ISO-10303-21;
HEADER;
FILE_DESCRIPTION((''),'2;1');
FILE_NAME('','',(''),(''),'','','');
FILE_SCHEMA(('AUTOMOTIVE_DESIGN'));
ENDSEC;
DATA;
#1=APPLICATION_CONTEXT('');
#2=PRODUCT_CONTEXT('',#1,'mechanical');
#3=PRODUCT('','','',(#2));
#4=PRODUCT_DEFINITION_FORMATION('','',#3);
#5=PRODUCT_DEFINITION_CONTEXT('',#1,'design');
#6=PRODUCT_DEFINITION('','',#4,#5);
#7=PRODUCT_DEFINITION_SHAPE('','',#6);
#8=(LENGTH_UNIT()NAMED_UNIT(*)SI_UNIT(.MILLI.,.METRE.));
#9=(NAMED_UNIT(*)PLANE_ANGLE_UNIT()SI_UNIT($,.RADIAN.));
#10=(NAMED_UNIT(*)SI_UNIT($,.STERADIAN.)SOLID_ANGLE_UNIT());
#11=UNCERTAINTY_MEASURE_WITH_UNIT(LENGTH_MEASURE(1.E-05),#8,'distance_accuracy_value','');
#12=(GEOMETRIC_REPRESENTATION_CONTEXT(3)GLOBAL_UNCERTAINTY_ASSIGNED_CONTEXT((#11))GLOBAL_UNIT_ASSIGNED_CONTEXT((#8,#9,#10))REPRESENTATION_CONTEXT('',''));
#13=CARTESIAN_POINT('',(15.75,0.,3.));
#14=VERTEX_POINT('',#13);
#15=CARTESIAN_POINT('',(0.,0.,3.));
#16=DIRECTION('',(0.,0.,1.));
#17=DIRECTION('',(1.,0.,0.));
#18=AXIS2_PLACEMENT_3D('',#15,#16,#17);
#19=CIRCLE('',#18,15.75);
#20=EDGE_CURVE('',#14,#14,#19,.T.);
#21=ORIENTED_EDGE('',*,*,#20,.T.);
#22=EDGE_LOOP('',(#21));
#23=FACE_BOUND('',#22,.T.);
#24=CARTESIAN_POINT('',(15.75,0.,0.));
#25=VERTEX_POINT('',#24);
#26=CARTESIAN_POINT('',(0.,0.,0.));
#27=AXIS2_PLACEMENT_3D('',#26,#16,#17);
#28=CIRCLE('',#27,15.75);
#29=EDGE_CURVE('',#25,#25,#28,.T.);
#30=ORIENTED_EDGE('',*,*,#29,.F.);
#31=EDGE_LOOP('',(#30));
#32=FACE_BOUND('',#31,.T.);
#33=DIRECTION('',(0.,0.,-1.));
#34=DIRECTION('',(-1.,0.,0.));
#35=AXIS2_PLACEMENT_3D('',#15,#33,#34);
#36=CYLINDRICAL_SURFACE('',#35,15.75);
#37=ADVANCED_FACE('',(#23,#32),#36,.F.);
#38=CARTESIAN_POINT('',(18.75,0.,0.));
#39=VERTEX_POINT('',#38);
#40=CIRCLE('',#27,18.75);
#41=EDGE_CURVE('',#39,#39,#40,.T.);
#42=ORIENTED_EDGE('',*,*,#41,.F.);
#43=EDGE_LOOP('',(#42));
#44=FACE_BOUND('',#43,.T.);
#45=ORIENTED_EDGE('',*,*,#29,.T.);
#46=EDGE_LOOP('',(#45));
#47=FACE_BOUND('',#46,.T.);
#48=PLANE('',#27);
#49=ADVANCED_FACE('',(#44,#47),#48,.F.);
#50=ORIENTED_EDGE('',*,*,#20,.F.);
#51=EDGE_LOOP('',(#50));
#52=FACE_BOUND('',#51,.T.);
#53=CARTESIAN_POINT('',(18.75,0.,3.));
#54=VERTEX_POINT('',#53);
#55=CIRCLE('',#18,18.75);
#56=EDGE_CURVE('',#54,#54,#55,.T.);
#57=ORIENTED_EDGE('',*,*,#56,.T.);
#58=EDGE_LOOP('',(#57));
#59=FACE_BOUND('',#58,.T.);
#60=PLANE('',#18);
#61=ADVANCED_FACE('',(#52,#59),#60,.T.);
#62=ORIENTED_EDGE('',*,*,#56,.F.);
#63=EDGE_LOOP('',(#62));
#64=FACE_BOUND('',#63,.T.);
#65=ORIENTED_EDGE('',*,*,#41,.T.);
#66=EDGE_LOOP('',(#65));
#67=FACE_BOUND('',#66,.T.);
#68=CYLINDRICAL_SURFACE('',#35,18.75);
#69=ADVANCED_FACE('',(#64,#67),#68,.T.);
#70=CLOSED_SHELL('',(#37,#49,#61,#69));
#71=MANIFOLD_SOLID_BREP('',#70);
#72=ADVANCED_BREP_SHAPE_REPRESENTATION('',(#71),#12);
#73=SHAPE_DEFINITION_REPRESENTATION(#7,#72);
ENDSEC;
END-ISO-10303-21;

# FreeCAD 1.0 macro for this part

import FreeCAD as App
import Part
import Sketcher
Q = App.Units.Quantity

doc = App.newDocument("Part")
body = doc.addObject("PartDesign::Body", "Body")

sketch1 = body.newObject("Sketcher::SketchObject", "Sketch")
sketch1.AttachmentSupport = (doc.getObject("XY_Plane"), [""])
sketch1.MapMode = "FlatFace"
sketch1.addGeometry([
    Part.Circle(App.Vector(0, 0, 0), App.Vector(0, 0, 1), 18.75),
    Part.Circle(App.Vector(0, 0, 0), App.Vector(0, 0, 1), 15.75),
], False)
sketch1.addConstraint([
    Sketcher.Constraint("Coincident", 0, 3, -1, 1),
    Sketcher.Constraint("Coincident", 1, 3, -1, 1),
    Sketcher.Constraint("Diameter", 0, Q("37.5 mm")),
    Sketcher.Constraint("Diameter", 1, Q("31.5 mm")),
])
pad1 = body.newObject("PartDesign::Pad", "Pad")
pad1.Profile = sketch1
pad1.Length = 3

doc.recompute()
